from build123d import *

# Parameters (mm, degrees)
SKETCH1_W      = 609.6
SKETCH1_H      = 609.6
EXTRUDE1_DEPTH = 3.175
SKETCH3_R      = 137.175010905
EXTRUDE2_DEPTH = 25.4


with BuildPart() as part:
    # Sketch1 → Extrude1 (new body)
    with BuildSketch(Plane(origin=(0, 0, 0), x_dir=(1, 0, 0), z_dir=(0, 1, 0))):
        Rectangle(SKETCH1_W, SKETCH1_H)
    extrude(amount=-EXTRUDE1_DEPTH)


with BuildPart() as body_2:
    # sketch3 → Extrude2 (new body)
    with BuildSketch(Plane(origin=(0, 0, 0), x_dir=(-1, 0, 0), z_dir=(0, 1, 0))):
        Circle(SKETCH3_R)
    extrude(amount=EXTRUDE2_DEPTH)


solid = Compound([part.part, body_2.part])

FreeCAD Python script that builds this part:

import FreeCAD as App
import Part
import Sketcher

V = App.Vector
Q = App.Units.Quantity

doc = App.newDocument("Part")
body = doc.addObject("PartDesign::Body", "Body")

sketch1 = body.newObject("Sketcher::SketchObject", "Sketch")
sketch1.AttachmentSupport = (doc.getObject("XZ_Plane"), [""])
sketch1.MapMode = "FlatFace"
sketch1.addGeometry([
    Part.LineSegment(V(-304.8, -304.8, 0), V(-304.8, 304.8, 0)),
    Part.LineSegment(V(-304.8, 304.8, 0), V(304.8, 304.8, 0)),
    Part.LineSegment(V(304.8, 304.8, 0), V(304.8, -304.8, 0)),
    Part.LineSegment(V(304.8, -304.8, 0), V(-304.8, -304.8, 0)),
], False)
sketch1.addConstraint([
    Sketcher.Constraint("Coincident", 0, 2, 1, 1),
    Sketcher.Constraint("Coincident", 1, 2, 2, 1),
    Sketcher.Constraint("Coincident", 2, 2, 3, 1),
    Sketcher.Constraint("Coincident", 3, 2, 0, 1),
    Sketcher.Constraint("Vertical", 0),
    Sketcher.Constraint("Horizontal", 1),
    Sketcher.Constraint("Vertical", 2),
    Sketcher.Constraint("Horizontal", 3),
    Sketcher.Constraint("Symmetric", 0, 2, 2, 2, -1, 1),
    Sketcher.Constraint("Equal", 3, 0),
    Sketcher.Constraint("DistanceX", 1, 1, 1, 2, Q("24 in")),
])
pad1 = body.newObject("PartDesign::Pad", "Pad")
pad1.Profile = sketch1
pad1.Length = Q("0.125 in")
body2 = doc.addObject("PartDesign::Body", "Body001")

sketch2 = body2.newObject("Sketcher::SketchObject", "Sketch001")
sketch2.AttachmentSupport = (doc.getObject("XZ_Plane001"), [""])
sketch2.MapMode = "FlatFace"
sketch2.addGeometry(Part.Circle(V(0, 0, 0), V(0, 0, 1), 137.175011), False)
sketch2.addConstraint([
    Sketcher.Constraint("Coincident", 0, 3, -1, 1),
    Sketcher.Constraint("Diameter", 0, Q("274.350022 mm")),
])
pad2 = body2.newObject("PartDesign::Pad", "Pad001")
pad2.Profile = sketch2
pad2.Length = Q("1 in")
pad2.Reversed = True

doc.recompute()
